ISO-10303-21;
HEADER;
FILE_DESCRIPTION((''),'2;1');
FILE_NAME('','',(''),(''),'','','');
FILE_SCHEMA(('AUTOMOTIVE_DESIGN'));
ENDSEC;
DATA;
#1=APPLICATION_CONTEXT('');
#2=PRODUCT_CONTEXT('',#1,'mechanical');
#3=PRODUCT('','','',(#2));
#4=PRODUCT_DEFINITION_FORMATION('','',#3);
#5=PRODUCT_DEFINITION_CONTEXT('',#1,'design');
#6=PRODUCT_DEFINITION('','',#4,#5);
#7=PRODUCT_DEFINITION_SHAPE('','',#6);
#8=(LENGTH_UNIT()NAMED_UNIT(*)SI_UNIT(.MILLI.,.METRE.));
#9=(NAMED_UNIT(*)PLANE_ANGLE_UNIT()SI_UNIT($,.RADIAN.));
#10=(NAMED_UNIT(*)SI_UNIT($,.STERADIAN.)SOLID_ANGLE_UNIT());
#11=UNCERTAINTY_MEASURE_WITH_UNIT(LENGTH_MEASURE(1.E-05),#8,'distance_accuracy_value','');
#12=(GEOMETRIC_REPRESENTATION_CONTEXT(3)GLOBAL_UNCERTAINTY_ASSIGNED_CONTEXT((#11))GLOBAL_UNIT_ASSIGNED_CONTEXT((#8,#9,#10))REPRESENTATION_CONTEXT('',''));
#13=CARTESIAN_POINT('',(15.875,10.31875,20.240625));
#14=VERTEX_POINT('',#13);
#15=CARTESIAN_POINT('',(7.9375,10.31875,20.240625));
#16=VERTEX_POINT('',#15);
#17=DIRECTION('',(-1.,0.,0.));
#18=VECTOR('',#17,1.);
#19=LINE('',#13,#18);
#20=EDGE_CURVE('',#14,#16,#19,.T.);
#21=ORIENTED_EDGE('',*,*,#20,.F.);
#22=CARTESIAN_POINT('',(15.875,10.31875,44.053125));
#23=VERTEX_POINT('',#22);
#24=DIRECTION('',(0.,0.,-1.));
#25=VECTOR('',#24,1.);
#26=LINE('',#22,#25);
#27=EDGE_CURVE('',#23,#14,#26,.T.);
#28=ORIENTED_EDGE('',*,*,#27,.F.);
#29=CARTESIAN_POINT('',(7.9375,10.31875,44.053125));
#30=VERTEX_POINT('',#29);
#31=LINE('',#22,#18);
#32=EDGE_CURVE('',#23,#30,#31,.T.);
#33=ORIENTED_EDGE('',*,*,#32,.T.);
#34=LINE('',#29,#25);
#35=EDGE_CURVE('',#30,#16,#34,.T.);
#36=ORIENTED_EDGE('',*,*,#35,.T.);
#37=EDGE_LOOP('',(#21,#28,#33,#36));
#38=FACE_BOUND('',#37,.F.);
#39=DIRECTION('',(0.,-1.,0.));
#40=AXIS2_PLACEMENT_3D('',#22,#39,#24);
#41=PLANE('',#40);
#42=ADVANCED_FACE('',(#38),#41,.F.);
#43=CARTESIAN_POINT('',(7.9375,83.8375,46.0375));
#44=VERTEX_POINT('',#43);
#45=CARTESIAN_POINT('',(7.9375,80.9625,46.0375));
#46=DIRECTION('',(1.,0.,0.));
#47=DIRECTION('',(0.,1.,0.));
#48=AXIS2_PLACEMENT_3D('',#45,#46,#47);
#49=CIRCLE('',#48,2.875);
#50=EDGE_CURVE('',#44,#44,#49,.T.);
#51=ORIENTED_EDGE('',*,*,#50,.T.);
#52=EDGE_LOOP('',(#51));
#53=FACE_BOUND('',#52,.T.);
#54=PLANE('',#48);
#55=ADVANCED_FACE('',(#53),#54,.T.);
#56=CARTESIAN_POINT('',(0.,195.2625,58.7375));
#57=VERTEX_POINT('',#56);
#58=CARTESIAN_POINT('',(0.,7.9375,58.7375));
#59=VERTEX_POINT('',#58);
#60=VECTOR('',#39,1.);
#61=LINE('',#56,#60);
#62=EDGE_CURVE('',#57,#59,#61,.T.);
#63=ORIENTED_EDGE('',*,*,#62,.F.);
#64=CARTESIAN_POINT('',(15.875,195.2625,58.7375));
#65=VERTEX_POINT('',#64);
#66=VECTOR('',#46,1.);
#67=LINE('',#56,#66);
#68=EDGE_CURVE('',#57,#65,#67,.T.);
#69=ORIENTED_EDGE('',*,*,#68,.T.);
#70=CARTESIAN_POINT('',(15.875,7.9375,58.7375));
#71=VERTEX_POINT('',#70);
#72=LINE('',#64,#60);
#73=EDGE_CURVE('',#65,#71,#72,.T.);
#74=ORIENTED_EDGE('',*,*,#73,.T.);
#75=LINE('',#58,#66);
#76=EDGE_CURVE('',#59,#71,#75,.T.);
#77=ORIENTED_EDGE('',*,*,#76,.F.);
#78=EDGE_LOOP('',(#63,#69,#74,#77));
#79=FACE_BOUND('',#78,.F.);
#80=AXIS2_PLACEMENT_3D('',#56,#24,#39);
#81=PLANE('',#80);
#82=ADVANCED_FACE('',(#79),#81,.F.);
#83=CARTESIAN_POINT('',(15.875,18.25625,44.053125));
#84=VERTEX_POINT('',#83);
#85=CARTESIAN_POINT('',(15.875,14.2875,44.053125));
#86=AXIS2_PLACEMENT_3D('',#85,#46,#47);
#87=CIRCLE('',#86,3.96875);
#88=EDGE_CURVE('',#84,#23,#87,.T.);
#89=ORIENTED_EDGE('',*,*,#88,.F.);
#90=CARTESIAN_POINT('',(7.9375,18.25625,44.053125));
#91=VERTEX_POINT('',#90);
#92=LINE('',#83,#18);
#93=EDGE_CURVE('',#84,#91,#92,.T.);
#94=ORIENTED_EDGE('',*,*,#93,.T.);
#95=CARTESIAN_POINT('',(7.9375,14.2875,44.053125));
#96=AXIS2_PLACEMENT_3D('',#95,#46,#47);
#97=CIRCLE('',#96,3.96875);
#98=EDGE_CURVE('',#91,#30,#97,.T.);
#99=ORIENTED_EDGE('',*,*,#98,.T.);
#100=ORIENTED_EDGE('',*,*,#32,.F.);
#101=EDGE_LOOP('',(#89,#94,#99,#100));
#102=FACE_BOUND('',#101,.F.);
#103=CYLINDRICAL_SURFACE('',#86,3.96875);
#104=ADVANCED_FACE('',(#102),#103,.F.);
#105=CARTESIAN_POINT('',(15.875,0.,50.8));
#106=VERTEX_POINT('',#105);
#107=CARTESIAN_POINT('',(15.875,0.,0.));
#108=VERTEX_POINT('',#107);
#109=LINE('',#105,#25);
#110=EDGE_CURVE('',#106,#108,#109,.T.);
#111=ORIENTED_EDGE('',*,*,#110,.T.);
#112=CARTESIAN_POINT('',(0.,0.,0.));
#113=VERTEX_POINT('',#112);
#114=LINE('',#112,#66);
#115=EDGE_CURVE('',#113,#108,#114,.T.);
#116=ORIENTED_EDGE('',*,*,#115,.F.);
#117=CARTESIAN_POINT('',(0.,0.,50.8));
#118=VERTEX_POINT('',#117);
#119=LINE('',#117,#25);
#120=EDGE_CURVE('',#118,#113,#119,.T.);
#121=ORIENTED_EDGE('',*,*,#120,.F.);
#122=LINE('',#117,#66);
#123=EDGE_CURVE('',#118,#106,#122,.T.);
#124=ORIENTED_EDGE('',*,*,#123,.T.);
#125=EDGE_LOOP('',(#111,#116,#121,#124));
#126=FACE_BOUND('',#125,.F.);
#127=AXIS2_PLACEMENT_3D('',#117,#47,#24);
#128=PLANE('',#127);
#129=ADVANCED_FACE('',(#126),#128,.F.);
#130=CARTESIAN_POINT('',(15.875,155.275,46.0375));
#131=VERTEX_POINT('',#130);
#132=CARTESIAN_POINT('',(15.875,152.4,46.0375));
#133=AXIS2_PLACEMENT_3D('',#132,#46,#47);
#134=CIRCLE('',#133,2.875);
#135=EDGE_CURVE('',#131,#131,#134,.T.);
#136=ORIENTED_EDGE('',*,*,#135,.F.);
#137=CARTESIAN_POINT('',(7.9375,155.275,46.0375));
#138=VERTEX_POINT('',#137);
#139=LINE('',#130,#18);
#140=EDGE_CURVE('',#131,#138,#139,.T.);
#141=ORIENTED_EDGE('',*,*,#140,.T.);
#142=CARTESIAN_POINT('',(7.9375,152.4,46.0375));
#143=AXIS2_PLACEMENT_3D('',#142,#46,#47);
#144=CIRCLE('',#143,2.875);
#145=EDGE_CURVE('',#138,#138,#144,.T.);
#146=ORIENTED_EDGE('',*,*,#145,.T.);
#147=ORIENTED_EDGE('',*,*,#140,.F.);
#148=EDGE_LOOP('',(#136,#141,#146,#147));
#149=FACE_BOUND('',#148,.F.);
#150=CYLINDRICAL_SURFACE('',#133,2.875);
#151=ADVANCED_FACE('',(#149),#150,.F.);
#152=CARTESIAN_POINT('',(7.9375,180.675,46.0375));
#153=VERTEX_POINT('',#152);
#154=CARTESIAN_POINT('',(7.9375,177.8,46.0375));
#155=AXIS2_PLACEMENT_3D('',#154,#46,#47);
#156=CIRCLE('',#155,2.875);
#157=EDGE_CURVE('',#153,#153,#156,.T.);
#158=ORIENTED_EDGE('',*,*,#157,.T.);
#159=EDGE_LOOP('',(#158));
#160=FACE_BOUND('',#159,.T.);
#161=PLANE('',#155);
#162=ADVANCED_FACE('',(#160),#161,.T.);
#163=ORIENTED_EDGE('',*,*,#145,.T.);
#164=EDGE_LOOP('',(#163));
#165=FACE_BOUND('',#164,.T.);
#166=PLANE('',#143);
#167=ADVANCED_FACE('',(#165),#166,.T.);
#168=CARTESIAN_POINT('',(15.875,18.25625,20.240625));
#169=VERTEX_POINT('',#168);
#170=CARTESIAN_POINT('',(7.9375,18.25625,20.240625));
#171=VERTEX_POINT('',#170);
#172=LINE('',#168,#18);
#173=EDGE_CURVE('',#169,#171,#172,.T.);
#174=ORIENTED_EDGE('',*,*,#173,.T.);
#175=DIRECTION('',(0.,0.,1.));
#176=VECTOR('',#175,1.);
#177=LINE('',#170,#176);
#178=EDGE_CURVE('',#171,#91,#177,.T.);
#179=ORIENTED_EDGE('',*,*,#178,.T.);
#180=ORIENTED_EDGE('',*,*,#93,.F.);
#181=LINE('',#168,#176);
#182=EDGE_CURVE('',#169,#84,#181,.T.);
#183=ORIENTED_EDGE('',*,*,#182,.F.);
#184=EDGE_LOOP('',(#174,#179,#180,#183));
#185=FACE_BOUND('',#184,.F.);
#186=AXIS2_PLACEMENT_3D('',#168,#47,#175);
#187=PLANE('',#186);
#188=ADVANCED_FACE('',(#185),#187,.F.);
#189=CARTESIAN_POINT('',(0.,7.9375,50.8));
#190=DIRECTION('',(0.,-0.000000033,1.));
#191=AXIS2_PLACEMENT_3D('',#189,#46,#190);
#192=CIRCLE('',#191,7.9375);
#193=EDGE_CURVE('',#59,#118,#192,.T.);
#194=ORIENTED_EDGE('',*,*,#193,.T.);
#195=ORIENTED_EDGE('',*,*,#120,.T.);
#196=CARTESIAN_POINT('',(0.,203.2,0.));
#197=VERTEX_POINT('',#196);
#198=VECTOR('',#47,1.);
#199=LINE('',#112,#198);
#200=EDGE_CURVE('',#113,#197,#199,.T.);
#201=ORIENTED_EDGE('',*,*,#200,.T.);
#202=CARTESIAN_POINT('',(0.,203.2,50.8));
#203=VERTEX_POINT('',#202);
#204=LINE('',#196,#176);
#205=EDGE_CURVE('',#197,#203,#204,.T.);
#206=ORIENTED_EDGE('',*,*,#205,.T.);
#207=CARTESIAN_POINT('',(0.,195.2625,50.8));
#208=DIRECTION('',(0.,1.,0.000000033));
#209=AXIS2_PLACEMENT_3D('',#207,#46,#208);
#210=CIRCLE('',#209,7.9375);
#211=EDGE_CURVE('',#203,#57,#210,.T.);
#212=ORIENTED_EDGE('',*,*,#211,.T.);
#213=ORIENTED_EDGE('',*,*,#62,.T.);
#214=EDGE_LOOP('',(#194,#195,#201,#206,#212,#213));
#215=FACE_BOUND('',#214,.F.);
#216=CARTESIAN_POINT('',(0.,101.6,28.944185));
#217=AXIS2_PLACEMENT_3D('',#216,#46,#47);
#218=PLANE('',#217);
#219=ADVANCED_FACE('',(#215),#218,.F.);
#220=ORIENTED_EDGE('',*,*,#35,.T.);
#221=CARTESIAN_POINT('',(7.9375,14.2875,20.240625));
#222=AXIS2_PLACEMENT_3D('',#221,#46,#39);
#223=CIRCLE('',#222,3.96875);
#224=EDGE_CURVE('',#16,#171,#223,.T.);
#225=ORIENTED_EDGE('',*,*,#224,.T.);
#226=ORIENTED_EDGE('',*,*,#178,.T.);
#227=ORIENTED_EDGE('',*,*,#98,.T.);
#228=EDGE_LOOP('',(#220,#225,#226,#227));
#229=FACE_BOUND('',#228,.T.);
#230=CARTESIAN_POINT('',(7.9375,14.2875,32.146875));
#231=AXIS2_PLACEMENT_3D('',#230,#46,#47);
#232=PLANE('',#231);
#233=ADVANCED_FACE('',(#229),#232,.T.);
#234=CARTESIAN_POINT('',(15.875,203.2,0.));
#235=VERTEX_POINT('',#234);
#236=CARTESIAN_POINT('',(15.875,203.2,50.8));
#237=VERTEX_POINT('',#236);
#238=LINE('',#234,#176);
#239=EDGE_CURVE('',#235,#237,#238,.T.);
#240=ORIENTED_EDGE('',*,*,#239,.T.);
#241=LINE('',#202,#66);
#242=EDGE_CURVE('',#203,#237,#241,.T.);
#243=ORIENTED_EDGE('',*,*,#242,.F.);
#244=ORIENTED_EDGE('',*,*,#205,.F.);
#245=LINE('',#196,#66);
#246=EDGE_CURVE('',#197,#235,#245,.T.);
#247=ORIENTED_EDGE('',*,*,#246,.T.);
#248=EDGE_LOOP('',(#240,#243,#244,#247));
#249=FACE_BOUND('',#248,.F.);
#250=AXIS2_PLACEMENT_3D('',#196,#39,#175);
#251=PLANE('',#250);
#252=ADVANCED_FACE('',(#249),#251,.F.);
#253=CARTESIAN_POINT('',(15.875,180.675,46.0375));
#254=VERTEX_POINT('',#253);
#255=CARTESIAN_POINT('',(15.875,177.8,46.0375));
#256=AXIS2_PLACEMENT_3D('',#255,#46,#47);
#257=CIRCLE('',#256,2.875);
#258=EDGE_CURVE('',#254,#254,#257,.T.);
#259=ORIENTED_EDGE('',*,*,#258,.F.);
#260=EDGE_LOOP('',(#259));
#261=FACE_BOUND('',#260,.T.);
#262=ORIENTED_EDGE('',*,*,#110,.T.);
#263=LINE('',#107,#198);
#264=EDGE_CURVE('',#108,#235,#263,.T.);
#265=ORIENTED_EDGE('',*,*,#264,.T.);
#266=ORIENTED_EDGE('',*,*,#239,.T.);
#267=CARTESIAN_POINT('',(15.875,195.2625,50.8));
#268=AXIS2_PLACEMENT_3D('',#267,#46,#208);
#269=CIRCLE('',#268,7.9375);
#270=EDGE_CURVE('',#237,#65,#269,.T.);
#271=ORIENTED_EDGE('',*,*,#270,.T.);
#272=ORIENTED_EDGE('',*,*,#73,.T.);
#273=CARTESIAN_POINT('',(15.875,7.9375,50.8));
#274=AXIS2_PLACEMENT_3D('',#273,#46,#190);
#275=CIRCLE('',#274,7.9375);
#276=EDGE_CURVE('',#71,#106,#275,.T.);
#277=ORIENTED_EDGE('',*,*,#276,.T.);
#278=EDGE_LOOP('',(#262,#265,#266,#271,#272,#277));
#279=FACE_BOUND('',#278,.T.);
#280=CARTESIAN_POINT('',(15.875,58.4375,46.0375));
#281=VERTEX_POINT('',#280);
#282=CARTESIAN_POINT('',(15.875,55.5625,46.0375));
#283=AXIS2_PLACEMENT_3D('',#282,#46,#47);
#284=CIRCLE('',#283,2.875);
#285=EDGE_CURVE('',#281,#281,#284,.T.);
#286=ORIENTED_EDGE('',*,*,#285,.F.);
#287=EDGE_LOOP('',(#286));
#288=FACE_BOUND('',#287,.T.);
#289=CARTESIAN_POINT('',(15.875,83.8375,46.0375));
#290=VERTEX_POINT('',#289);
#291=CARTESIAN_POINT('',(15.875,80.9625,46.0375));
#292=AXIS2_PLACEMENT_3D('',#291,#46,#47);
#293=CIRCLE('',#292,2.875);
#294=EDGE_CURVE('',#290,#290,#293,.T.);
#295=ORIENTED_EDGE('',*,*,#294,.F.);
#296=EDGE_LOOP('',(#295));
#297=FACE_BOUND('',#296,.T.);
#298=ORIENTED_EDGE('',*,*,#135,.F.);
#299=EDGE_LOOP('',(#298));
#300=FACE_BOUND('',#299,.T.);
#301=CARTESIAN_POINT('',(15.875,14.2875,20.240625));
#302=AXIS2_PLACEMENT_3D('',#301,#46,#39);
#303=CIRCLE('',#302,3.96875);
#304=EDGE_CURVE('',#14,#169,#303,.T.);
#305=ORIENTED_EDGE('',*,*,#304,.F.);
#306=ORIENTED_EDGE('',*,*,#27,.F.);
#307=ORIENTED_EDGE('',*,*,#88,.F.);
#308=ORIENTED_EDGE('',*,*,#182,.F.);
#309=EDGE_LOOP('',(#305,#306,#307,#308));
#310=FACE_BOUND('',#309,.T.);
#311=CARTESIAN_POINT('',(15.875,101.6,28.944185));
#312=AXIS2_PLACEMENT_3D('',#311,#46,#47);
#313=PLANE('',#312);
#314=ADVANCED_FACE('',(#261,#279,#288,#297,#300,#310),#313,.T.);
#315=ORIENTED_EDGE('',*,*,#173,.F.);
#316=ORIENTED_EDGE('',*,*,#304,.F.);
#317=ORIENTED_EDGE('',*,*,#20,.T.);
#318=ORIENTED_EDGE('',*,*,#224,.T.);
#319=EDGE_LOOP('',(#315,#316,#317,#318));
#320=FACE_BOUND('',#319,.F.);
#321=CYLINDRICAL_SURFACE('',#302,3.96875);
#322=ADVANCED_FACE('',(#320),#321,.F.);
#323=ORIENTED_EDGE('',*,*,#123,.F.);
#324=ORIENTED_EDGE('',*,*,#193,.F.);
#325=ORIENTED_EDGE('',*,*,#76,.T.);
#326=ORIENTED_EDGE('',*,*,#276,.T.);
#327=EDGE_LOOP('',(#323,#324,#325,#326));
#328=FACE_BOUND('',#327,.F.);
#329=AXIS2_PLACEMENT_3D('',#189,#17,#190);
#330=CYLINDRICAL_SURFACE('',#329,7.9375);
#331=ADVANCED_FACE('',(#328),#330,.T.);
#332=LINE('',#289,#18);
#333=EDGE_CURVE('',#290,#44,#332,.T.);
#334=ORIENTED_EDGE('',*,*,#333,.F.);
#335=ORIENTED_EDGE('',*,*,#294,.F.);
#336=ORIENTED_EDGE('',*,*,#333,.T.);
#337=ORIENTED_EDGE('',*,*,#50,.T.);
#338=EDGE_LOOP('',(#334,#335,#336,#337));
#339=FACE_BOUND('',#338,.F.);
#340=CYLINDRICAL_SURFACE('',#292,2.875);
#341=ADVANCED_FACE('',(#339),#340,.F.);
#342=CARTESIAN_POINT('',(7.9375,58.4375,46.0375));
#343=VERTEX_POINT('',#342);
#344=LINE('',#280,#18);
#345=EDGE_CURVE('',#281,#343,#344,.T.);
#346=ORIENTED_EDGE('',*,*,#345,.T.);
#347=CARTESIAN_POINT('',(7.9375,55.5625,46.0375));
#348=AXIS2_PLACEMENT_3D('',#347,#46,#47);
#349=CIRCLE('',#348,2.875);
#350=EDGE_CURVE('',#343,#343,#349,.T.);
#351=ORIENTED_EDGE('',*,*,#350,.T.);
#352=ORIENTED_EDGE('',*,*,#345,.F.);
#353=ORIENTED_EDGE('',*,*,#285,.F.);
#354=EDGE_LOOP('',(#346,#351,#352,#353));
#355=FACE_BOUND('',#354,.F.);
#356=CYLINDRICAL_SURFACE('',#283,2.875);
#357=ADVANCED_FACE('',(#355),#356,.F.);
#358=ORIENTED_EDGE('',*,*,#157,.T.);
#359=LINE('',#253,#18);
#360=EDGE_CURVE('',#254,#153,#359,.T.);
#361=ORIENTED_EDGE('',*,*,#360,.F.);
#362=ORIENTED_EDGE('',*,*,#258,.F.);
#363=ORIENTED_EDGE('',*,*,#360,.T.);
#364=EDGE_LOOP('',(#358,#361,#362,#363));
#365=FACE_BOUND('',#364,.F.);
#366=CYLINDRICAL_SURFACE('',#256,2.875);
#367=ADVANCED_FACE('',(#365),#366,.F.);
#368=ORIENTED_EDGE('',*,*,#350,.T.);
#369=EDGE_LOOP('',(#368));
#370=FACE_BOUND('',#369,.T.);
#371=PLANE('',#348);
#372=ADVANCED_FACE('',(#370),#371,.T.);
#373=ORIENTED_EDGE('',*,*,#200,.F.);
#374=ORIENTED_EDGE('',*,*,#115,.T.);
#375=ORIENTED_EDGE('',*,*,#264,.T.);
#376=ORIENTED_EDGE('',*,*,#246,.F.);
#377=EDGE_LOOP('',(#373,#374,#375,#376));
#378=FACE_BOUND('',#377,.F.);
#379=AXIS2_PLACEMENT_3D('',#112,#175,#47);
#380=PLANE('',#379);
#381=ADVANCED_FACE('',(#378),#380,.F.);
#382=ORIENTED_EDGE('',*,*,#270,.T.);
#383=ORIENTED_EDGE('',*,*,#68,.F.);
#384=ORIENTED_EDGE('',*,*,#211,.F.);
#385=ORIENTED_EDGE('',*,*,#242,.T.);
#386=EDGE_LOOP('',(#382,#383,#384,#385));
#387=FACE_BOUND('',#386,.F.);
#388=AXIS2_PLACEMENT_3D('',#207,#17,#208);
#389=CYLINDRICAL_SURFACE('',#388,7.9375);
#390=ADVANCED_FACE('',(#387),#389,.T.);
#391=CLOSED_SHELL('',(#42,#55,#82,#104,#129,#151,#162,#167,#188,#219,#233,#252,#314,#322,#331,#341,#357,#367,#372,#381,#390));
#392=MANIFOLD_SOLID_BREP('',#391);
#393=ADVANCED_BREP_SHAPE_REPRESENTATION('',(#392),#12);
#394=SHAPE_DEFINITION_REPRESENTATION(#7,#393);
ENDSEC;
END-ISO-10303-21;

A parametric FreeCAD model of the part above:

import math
import FreeCAD as App
import Part
import Sketcher

V = App.Vector
Q = App.Units.Quantity

doc = App.newDocument("Part")
params = doc.addObject("Spreadsheet::Sheet", "Params")
for row, (alias, value) in enumerate([
    ("sketch1_width", "8 in"),
    ("sketch1_height", "2 in"),
    ("sketch1_radius", "0.3125 in"),
    ("pad1_length", "0.625 in"),
    ("sketch2_radius", "0.15625 in"),
    ("sketch2_height", "0.9375 in"),
    ("pocket1_length", "0.3125 in"),
], start=1):
    params.set(f"A{row}", alias)
    params.set(f"B{row}", "=" + value)
    params.setAlias(f"B{row}", alias)

body = doc.addObject("PartDesign::Body", "Body")

sketch1 = body.newObject("Sketcher::SketchObject", "Sketch")
sketch1.AttachmentSupport = (doc.getObject("YZ_Plane"), [""])
sketch1.MapMode = "FlatFace"
sketch1.addGeometry([
    Part.LineSegment(V(0, 50.8, 0), V(0, 0, 0)),
    Part.LineSegment(V(0, 0, 0), V(203.2, 0, 0)),
    Part.LineSegment(V(203.2, 0, 0), V(203.2, 50.8, 0)),
    Part.ArcOfCircle(Part.Circle(V(195.2625, 50.8, 0), V(0, 0, 1), 7.9375), math.radians(0.000002), math.radians(89.999998)),
    Part.LineSegment(V(195.2625, 58.7375, 0), V(7.9375, 58.7375, 0)),
    Part.ArcOfCircle(Part.Circle(V(7.9375, 50.8, 0), V(0, 0, 1), 7.9375), math.radians(90.000002), math.radians(179.999998)),
], False)
sketch1.addConstraint([
    Sketcher.Constraint("Coincident", 0, 2, 1, 1),
    Sketcher.Constraint("Coincident", 1, 2, 2, 1),
    Sketcher.Constraint("Tangent", 2, 2, 3, 1),
    Sketcher.Constraint("Tangent", 3, 2, 4, 1),
    Sketcher.Constraint("Tangent", 4, 2, 5, 1),
    Sketcher.Constraint("Tangent", 5, 2, 0, 1),
    Sketcher.Constraint("Vertical", 0),
    Sketcher.Constraint("Horizontal", 1),
    Sketcher.Constraint("Vertical", 2),
    Sketcher.Constraint("Horizontal", 4),
    Sketcher.Constraint("Coincident", 0, 2, -1, 1),
    Sketcher.Constraint("Equal", 3, 5),
    Sketcher.Constraint("DistanceX", 1, 1, 1, 2, Q("8 in")),
    Sketcher.Constraint("DistanceY", 0, 2, 0, 1, Q("2 in")),
    Sketcher.Constraint("Radius", 3, Q("0.3125 in")),
])
sketch1.setExpression("Constraints[12]", "Params.sketch1_width")
sketch1.setExpression("Constraints[13]", "Params.sketch1_height")
sketch1.setExpression("Constraints[14]", "Params.sketch1_radius")
pad1 = body.newObject("PartDesign::Pad", "Pad")
pad1.Profile = sketch1
pad1.setExpression("Length", "Params.pad1_length")

sketch2 = body.newObject("Sketcher::SketchObject", "Sketch001")
sketch2.AttachmentSupport = (doc.getObject("YZ_Plane"), [""])
sketch2.MapMode = "FlatFace"
sketch2.AttachmentOffset = App.Placement(V(0, 0, 0.625 * 25.4), App.Rotation())
sketch2.addGeometry([
    Part.ArcOfCircle(Part.Circle(V(14.2875, 44.053125, 0), V(0, 0, 1), 3.96875), math.radians(0), math.radians(180)),
    Part.LineSegment(V(10.31875, 44.053125, 0), V(10.31875, 20.240625, 0)),
    Part.ArcOfCircle(Part.Circle(V(14.2875, 20.240625, 0), V(0, 0, 1), 3.96875), math.radians(180), math.radians(360)),
    Part.LineSegment(V(18.25625, 20.240625, 0), V(18.25625, 44.053125, 0)),
    Part.Circle(V(55.5625, 46.0375, 0), V(0, 0, 1), 2.875),
    Part.Circle(V(80.9625, 46.0375, 0), V(0, 0, 1), 2.875),
    Part.Circle(V(152.4, 46.0375, 0), V(0, 0, 1), 2.875),
    Part.Circle(V(177.8, 46.0375, 0), V(0, 0, 1), 2.875),
], False)
sketch2.addConstraint([
    Sketcher.Constraint("Tangent", 0, 2, 1, 1),
    Sketcher.Constraint("Tangent", 1, 2, 2, 1),
    Sketcher.Constraint("Tangent", 2, 2, 3, 1),
    Sketcher.Constraint("Tangent", 3, 2, 0, 1),
    Sketcher.Constraint("Vertical", 1),
    Sketcher.Constraint("Vertical", 3),
    Sketcher.Constraint("Equal", 4, 5),
    Sketcher.Constraint("Equal", 5, 6),
    Sketcher.Constraint("Equal", 6, 7),
    Sketcher.Constraint("Horizontal", 4, 3, 5, 3),
    Sketcher.Constraint("Horizontal", 5, 3, 6, 3),
    Sketcher.Constraint("Horizontal", 6, 3, 7, 3),
    Sketcher.Constraint("DistanceX", -1, 1, 6, 3, Q("6 in")),
    Sketcher.Constraint("DistanceX", -1, 1, 7, 3, Q("7 in")),
    Sketcher.Constraint("Radius", 0, Q("0.15625 in")),
    Sketcher.Constraint("DistanceX", 4, 3, 5, 3, Q("1 in")),
    Sketcher.Constraint("Diameter", 4, 5.75),
    Sketcher.Constraint("DistanceY", 1, 2, 1, 1, Q("0.9375 in")),
    Sketcher.Constraint("DistanceX", -1, 1, 0, 3, Q("0.5625 in")),
    Sketcher.Constraint("DistanceY", -1, 1, 0, 3, Q("1.734375 in")),
    Sketcher.Constraint("DistanceX", -1, 1, 4, 3, Q("2.1875 in")),
    Sketcher.Constraint("DistanceY", -1, 1, 4, 3, Q("1.8125 in")),
])
sketch2.setExpression("Constraints[14]", "Params.sketch2_radius")
sketch2.setExpression("Constraints[17]", "Params.sketch2_height")
pocket1 = body.newObject("PartDesign::Pocket", "Pocket")
pocket1.Profile = sketch2
pocket1.setExpression("Length", "Params.pocket1_length")

doc.recompute()
